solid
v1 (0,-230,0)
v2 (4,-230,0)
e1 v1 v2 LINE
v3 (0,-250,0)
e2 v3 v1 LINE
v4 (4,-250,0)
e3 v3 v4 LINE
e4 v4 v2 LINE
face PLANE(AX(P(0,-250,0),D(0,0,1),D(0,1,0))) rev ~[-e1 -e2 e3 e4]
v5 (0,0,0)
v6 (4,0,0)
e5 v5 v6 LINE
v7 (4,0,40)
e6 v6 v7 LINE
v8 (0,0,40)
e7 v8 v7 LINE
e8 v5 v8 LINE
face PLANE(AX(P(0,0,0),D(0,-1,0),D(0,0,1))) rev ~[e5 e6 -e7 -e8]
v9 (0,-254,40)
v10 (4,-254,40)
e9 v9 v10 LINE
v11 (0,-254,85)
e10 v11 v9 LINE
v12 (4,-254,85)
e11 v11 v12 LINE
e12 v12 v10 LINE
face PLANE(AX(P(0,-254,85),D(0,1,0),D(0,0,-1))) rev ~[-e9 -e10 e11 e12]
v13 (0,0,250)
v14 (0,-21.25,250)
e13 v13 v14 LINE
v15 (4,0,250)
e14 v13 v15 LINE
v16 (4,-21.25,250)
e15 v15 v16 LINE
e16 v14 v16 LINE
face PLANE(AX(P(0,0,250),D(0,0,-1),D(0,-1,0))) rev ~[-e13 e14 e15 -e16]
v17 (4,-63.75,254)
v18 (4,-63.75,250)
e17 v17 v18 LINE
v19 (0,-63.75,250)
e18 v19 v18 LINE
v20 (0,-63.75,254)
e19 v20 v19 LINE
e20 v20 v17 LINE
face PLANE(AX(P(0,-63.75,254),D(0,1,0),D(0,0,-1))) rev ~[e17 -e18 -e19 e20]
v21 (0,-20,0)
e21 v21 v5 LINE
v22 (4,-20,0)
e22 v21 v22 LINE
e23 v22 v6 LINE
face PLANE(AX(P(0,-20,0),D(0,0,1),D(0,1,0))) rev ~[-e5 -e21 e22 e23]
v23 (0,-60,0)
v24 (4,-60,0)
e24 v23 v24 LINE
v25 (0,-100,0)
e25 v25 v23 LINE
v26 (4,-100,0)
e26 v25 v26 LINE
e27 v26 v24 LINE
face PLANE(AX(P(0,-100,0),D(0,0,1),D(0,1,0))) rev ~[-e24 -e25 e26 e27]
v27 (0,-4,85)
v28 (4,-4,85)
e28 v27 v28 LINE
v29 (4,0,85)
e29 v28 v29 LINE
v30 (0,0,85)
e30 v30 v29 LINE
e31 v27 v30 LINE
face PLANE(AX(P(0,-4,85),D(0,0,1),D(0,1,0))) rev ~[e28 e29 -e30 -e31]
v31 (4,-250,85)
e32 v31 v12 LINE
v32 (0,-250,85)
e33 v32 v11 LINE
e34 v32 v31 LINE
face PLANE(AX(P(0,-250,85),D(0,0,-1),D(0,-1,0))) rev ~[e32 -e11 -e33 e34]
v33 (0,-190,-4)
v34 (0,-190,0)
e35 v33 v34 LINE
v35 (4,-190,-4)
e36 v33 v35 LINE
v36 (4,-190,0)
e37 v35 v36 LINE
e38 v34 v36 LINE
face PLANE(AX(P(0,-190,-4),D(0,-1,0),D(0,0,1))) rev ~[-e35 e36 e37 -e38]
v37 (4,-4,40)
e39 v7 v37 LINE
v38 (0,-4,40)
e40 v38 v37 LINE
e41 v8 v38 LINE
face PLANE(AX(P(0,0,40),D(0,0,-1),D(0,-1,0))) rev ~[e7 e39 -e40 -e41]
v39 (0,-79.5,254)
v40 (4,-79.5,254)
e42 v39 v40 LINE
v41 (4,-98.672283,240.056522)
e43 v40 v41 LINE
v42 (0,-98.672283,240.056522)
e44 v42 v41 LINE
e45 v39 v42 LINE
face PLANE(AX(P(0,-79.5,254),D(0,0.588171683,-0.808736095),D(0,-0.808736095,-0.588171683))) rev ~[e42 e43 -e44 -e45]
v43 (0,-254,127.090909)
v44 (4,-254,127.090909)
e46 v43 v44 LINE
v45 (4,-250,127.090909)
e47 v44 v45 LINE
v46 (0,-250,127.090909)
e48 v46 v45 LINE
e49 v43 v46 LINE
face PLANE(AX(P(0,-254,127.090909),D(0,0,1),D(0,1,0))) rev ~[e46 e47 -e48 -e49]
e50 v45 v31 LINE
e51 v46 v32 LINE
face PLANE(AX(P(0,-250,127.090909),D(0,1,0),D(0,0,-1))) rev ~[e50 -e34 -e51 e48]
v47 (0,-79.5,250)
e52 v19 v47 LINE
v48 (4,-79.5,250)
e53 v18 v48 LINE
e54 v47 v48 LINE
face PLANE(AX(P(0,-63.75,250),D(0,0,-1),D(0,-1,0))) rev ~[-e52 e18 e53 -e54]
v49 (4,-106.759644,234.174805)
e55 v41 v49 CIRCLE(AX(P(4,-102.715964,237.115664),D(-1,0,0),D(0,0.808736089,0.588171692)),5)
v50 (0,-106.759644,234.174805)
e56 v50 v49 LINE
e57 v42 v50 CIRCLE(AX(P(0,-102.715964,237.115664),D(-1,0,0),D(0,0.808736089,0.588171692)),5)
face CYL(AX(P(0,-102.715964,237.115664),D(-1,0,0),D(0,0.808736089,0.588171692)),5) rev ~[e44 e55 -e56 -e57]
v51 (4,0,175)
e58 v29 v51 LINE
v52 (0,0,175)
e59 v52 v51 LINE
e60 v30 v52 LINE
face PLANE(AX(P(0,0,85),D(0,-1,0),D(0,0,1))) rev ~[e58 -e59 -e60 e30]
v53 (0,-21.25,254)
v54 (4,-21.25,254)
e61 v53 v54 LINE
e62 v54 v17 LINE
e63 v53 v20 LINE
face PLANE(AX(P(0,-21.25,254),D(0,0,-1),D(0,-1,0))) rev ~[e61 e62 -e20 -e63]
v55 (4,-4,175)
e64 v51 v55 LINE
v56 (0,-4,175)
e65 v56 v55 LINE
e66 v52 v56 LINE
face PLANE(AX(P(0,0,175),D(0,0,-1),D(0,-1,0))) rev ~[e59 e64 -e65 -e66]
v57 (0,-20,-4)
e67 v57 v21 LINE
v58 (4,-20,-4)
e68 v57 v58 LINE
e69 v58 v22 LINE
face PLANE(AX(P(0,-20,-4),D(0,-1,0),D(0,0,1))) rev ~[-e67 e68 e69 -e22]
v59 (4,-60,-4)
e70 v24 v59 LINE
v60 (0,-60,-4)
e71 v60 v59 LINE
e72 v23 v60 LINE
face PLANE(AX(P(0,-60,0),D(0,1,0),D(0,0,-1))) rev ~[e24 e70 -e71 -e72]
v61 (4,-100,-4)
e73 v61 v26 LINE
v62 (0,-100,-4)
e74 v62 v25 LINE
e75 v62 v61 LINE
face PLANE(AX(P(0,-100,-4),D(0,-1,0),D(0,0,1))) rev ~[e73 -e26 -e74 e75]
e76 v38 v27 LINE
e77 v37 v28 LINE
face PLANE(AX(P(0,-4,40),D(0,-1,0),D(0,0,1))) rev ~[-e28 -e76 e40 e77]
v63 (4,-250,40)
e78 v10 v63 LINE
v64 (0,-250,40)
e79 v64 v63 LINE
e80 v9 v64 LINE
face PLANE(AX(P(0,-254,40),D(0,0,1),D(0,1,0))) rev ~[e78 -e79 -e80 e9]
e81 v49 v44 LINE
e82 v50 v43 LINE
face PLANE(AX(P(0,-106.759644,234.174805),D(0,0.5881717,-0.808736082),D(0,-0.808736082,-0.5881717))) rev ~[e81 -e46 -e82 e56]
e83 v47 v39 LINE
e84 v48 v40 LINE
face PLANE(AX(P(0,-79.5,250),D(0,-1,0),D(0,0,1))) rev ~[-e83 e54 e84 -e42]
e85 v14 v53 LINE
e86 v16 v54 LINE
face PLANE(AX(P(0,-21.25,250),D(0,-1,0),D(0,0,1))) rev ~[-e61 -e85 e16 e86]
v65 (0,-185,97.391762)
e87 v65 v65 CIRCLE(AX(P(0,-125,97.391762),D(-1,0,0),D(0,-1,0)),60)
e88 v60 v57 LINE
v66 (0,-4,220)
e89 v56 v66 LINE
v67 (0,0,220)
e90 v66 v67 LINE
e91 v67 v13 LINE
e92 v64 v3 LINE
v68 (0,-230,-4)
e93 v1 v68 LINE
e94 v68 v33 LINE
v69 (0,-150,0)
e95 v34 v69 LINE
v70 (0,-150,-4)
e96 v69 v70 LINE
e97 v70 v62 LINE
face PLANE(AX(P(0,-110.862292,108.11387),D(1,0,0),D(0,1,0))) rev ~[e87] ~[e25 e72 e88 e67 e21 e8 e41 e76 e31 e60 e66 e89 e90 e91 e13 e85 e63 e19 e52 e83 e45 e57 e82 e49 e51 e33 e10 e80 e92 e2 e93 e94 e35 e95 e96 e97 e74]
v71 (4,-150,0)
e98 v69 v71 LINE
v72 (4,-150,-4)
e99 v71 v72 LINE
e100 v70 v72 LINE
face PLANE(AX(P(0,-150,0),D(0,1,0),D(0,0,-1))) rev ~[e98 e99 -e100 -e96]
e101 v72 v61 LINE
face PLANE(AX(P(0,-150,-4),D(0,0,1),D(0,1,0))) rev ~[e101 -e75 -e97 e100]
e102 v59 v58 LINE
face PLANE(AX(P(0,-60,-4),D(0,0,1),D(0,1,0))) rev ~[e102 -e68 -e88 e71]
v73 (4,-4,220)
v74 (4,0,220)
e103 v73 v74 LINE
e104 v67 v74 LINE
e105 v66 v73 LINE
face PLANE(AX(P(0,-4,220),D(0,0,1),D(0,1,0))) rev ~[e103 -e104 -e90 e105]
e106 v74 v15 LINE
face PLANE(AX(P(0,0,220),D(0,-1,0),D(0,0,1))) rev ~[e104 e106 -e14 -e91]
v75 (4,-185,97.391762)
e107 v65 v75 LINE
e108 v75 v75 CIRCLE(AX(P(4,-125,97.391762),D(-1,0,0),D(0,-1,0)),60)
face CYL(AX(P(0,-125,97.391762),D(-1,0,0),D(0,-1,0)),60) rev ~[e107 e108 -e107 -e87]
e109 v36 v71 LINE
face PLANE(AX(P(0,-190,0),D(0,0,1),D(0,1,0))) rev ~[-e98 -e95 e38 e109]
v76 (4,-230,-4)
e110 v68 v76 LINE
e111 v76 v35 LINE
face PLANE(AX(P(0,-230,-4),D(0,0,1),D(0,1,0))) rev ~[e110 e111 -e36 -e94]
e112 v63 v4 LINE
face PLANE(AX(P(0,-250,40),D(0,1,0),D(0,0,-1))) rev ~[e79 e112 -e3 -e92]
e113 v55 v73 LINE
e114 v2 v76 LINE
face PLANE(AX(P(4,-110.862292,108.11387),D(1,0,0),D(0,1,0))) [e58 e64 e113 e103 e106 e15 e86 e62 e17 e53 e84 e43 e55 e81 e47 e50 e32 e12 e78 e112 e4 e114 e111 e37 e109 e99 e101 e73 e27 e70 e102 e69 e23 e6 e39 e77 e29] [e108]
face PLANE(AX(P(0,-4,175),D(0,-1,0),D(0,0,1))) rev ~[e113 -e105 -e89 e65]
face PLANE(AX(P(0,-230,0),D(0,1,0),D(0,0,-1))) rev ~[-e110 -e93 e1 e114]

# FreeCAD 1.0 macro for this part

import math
import FreeCAD as App
import Part
import Sketcher

doc = App.newDocument("Part")
params = doc.addObject("Spreadsheet::Sheet", "Params")
for row, (alias, value) in enumerate([
    ("sketch1_radius", "5 mm"),
    ("sketch1_width", "20 mm"),
    ("sketch1_width2", "4 mm"),
    ("sketch1_width3", "40 mm"),
    ("sketch1_width4", "50 mm"),
    ("pad1_length", "4 mm"),
    ("sketch2_diameter", "120 mm"),
    ("pocket1_length", "25 mm"),
], start=1):
    params.set(f"A{row}", alias)
    params.set(f"B{row}", "=" + value)
    params.setAlias(f"B{row}", alias)

body = doc.addObject("PartDesign::Body", "Body")

# Sketch on YZ plane
sketch1 = doc.addObject("Sketcher::SketchObject", "Sketch")
body.addObject(sketch1)
sketch1.AttachmentSupport = (doc.YZ_Plane, [""])
sketch1.MapMode = "FlatFace"
sketch1.addGeometry([
    Part.LineSegment(App.Vector(-20, 0, 0), App.Vector(0, 0, 0)),  # 0
    Part.LineSegment(App.Vector(0, 0, 0), App.Vector(0, 40, 0)),  # 1
    Part.LineSegment(App.Vector(0, 40, 0), App.Vector(-4, 40, 0)),  # 2
    Part.LineSegment(App.Vector(-4, 40, 0), App.Vector(-4, 85, 0)),  # 3
    Part.LineSegment(App.Vector(-4, 85, 0), App.Vector(0, 85, 0)),  # 4
    Part.LineSegment(App.Vector(0, 85, 0), App.Vector(0, 175, 0)),  # 5
    Part.LineSegment(App.Vector(0, 175, 0), App.Vector(-4, 175, 0)),  # 6
    Part.LineSegment(App.Vector(-4, 175, 0), App.Vector(-4, 220, 0)),  # 7
    Part.LineSegment(App.Vector(-4, 220, 0), App.Vector(0, 220, 0)),  # 8
    Part.LineSegment(App.Vector(0, 220, 0), App.Vector(0, 250, 0)),  # 9
    Part.LineSegment(App.Vector(0, 250, 0), App.Vector(-21.2, 250, 0)),  # 10
    Part.LineSegment(App.Vector(-21.2, 250, 0), App.Vector(-21.2, 254, 0)),  # 11
    Part.LineSegment(App.Vector(-21.2, 254, 0), App.Vector(-63.8, 254, 0)),  # 12
    Part.LineSegment(App.Vector(-63.8, 254, 0), App.Vector(-63.8, 250, 0)),  # 13
    Part.LineSegment(App.Vector(-63.8, 250, 0), App.Vector(-79.5, 250, 0)),  # 14
    Part.LineSegment(App.Vector(-79.5, 250, 0), App.Vector(-79.5, 254, 0)),  # 15
    Part.LineSegment(App.Vector(-79.5, 254, 0), App.Vector(-98.7, 240.1, 0)),  # 16
    Part.ArcOfCircle(Part.Circle(App.Vector(-102.7, 237.1, 0), App.Vector(0, 0, 1), 5), math.radians(-144), math.radians(36)),  # 17
    Part.LineSegment(App.Vector(-106.8, 234.2, 0), App.Vector(-254, 127.1, 0)),  # 18
    Part.LineSegment(App.Vector(-254, 127.1, 0), App.Vector(-250, 127.1, 0)),  # 19
    Part.LineSegment(App.Vector(-250, 127.1, 0), App.Vector(-250, 85, 0)),  # 20
    Part.LineSegment(App.Vector(-250, 85, 0), App.Vector(-254, 85, 0)),  # 21
    Part.LineSegment(App.Vector(-254, 85, 0), App.Vector(-254, 40, 0)),  # 22
    Part.LineSegment(App.Vector(-254, 40, 0), App.Vector(-250, 40, 0)),  # 23
    Part.LineSegment(App.Vector(-250, 40, 0), App.Vector(-250, 0, 0)),  # 24
    Part.LineSegment(App.Vector(-250, 0, 0), App.Vector(-230, 0, 0)),  # 25
    Part.LineSegment(App.Vector(-230, 0, 0), App.Vector(-230, -4, 0)),  # 26
    Part.LineSegment(App.Vector(-230, -4, 0), App.Vector(-190, -4, 0)),  # 27
    Part.LineSegment(App.Vector(-190, -4, 0), App.Vector(-190, 0, 0)),  # 28
    Part.LineSegment(App.Vector(-190, 0, 0), App.Vector(-150, 0, 0)),  # 29
    Part.LineSegment(App.Vector(-150, 0, 0), App.Vector(-150, -4, 0)),  # 30
    Part.LineSegment(App.Vector(-150, -4, 0), App.Vector(-100, -4, 0)),  # 31
    Part.LineSegment(App.Vector(-100, -4, 0), App.Vector(-100, 0, 0)),  # 32
    Part.LineSegment(App.Vector(-100, 0, 0), App.Vector(-60, 0, 0)),  # 33
    Part.LineSegment(App.Vector(-60, 0, 0), App.Vector(-60, -4, 0)),  # 34
    Part.LineSegment(App.Vector(-60, -4, 0), App.Vector(-20, -4, 0)),  # 35
    Part.LineSegment(App.Vector(-20, -4, 0), App.Vector(-20, 0, 0)),  # 36
], False)
sketch1.addConstraint([
    Sketcher.Constraint("Coincident", 0, 2, 1, 1),
    Sketcher.Constraint("Coincident", 1, 2, 2, 1),
    Sketcher.Constraint("Coincident", 2, 2, 3, 1),
    Sketcher.Constraint("Coincident", 3, 2, 4, 1),
    Sketcher.Constraint("Coincident", 4, 2, 5, 1),
    Sketcher.Constraint("Coincident", 5, 2, 6, 1),
    Sketcher.Constraint("Coincident", 6, 2, 7, 1),
    Sketcher.Constraint("Coincident", 7, 2, 8, 1),
    Sketcher.Constraint("Coincident", 8, 2, 9, 1),
    Sketcher.Constraint("Coincident", 9, 2, 10, 1),
    Sketcher.Constraint("Coincident", 10, 2, 11, 1),
    Sketcher.Constraint("Coincident", 11, 2, 12, 1),
    Sketcher.Constraint("Coincident", 12, 2, 13, 1),
    Sketcher.Constraint("Coincident", 13, 2, 14, 1),
    Sketcher.Constraint("Coincident", 14, 2, 15, 1),
    Sketcher.Constraint("Coincident", 15, 2, 16, 1),
    Sketcher.Constraint("Coincident", 16, 2, 17, 2),
    Sketcher.Constraint("Coincident", 17, 1, 18, 1),
    Sketcher.Constraint("Coincident", 18, 2, 19, 1),
    Sketcher.Constraint("Coincident", 19, 2, 20, 1),
    Sketcher.Constraint("Coincident", 20, 2, 21, 1),
    Sketcher.Constraint("Coincident", 21, 2, 22, 1),
    Sketcher.Constraint("Coincident", 22, 2, 23, 1),
    Sketcher.Constraint("Coincident", 23, 2, 24, 1),
    Sketcher.Constraint("Coincident", 24, 2, 25, 1),
    Sketcher.Constraint("Coincident", 25, 2, 26, 1),
    Sketcher.Constraint("Coincident", 26, 2, 27, 1),
    Sketcher.Constraint("Coincident", 27, 2, 28, 1),
    Sketcher.Constraint("Coincident", 28, 2, 29, 1),
    Sketcher.Constraint("Coincident", 29, 2, 30, 1),
    Sketcher.Constraint("Coincident", 30, 2, 31, 1),
    Sketcher.Constraint("Coincident", 31, 2, 32, 1),
    Sketcher.Constraint("Coincident", 32, 2, 33, 1),
    Sketcher.Constraint("Coincident", 33, 2, 34, 1),
    Sketcher.Constraint("Coincident", 34, 2, 35, 1),
    Sketcher.Constraint("Coincident", 35, 2, 36, 1),
    Sketcher.Constraint("Coincident", 36, 2, 0, 1),
    Sketcher.Constraint("Horizontal", 0),
    Sketcher.Constraint("Vertical", 1),
    Sketcher.Constraint("Horizontal", 2),
    Sketcher.Constraint("Vertical", 3),
    Sketcher.Constraint("Horizontal", 4),
    Sketcher.Constraint("Vertical", 5),
    Sketcher.Constraint("Horizontal", 6),
    Sketcher.Constraint("Vertical", 7),
    Sketcher.Constraint("Horizontal", 8),
    Sketcher.Constraint("Vertical", 9),
    Sketcher.Constraint("Horizontal", 10),
    Sketcher.Constraint("Vertical", 11),
    Sketcher.Constraint("Horizontal", 12),
    Sketcher.Constraint("Vertical", 13),
    Sketcher.Constraint("Horizontal", 14),
    Sketcher.Constraint("Vertical", 15),
    Sketcher.Constraint("Horizontal", 19),
    Sketcher.Constraint("Vertical", 20),
    Sketcher.Constraint("Horizontal", 21),
    Sketcher.Constraint("Vertical", 22),
    Sketcher.Constraint("Horizontal", 23),
    Sketcher.Constraint("Vertical", 24),
    Sketcher.Constraint("Horizontal", 25),
    Sketcher.Constraint("Vertical", 26),
    Sketcher.Constraint("Horizontal", 27),
    Sketcher.Constraint("Vertical", 28),
    Sketcher.Constraint("Horizontal", 29),
    Sketcher.Constraint("Vertical", 30),
    Sketcher.Constraint("Horizontal", 31),
    Sketcher.Constraint("Vertical", 32),
    Sketcher.Constraint("Horizontal", 33),
    Sketcher.Constraint("Vertical", 34),
    Sketcher.Constraint("Horizontal", 35),
    Sketcher.Constraint("Vertical", 36),
    Sketcher.Constraint("Coincident", 0, 2, -1, 1),
    Sketcher.Constraint("PointOnObject", 4, 2, -2),
    Sketcher.Constraint("PointOnObject", 8, 2, -2),
    Sketcher.Constraint("PointOnObject", 24, 2, -1),
    Sketcher.Constraint("PointOnObject", 28, 2, -1),
    Sketcher.Constraint("PointOnObject", 32, 2, -1),
    Sketcher.Constraint("Parallel", 16, 18),
    Sketcher.Constraint("Horizontal", 10, 2, 13, 2),
    Sketcher.Constraint("Horizontal", 12, 2, 15, 2),
    Sketcher.Constraint("Horizontal", 4, 2, 20, 2),
    Sketcher.Constraint("Horizontal", 2, 2, 22, 2),
    Sketcher.Constraint("Horizontal", 27, 2, 30, 2),
    Sketcher.Constraint("Horizontal", 31, 2, 34, 2),
    Sketcher.Constraint("Vertical", 3, 2, 6, 2),
    Sketcher.Constraint("Vertical", 18, 2, 21, 2),
    Sketcher.Constraint("Vertical", 20, 2, 23, 2),
    Sketcher.Constraint("Equal", 8, 19),
    Sketcher.Constraint("Equal", 0, 25),
    Sketcher.Constraint("Equal", 27, 29),
    Sketcher.Constraint("Equal", 29, 33),
    Sketcher.Constraint("Equal", 33, 35),
    Sketcher.Constraint("Equal", 35, 1),
    Sketcher.Constraint("Equal", 3, 7),
    Sketcher.Constraint("Equal", 23, 11),
    Sketcher.Constraint("Equal", 15, 26),
    Sketcher.Constraint("Radius", 17, 5.0),
    Sketcher.Constraint("DistanceX", 0, 1, 0, 2, 20.0),
    Sketcher.Constraint("DistanceX", 2, 2, 2, 1, 4.0),
    Sketcher.Constraint("DistanceX", 27, 1, 27, 2, 40.0),
    Sketcher.Constraint("DistanceX", 31, 1, 31, 2, 50.0),
    Sketcher.Constraint("DistanceY", 3, 1, 3, 2, 45.0),
    Sketcher.Constraint("DistanceY", 5, 1, 5, 2, 90.0),
    Sketcher.Constraint("DistanceY", 9, 1, 9, 2, 30.0),
    Sketcher.Constraint("DistanceX", 12, 2, 12, 1, 42.5),
    Sketcher.Constraint("DistanceX", 10, 2, 10, 1, 21.25),
    Sketcher.Constraint("DistanceX", 14, 2, 14, 1, 15.75),
    Sketcher.Constraint("DistanceY", 20, 2, 20, 1, 42.090909),
    Sketcher.Constraint("DistanceY", -1, 1, 16, 2, 240.056522),
    Sketcher.Constraint("DistanceX", 17, 3, 16, 2, 4.043681),
    Sketcher.Constraint("DistanceX", 17, 1, 17, 3, 4.04368),
])
sketch1.setExpression("Constraints[96]", "Params.sketch1_radius")
sketch1.setExpression("Constraints[97]", "Params.sketch1_width")
sketch1.setExpression("Constraints[98]", "Params.sketch1_width2")
sketch1.setExpression("Constraints[99]", "Params.sketch1_width3")
sketch1.setExpression("Constraints[100]", "Params.sketch1_width4")
pad1 = doc.addObject("PartDesign::Pad", "Pad")
body.addObject(pad1)
pad1.Profile = sketch1
pad1.setExpression("Length", "Params.pad1_length")

# Sketch on YZ plane
sketch2 = doc.addObject("Sketcher::SketchObject", "Sketch001")
body.addObject(sketch2)
sketch2.AttachmentSupport = (doc.YZ_Plane, [""])
sketch2.MapMode = "FlatFace"
sketch2.addGeometry(Part.Circle(App.Vector(-125, 97, 0), App.Vector(0, 0, 1), 60), False)
sketch2.addConstraint([
    Sketcher.Constraint("Diameter", 0, 120.0),
    Sketcher.Constraint("DistanceX", 0, 3, -1, 1, 125.0),
    Sketcher.Constraint("DistanceY", -1, 1, 0, 3, 97.391762),
])
sketch2.setExpression("Constraints[0]", "Params.sketch2_diameter")
pocket1 = doc.addObject("PartDesign::Pocket", "Pocket")
body.addObject(pocket1)
pocket1.Profile = sketch2
pocket1.setExpression("Length", "Params.pocket1_length")
pocket1.Reversed = True

doc.recompute()
